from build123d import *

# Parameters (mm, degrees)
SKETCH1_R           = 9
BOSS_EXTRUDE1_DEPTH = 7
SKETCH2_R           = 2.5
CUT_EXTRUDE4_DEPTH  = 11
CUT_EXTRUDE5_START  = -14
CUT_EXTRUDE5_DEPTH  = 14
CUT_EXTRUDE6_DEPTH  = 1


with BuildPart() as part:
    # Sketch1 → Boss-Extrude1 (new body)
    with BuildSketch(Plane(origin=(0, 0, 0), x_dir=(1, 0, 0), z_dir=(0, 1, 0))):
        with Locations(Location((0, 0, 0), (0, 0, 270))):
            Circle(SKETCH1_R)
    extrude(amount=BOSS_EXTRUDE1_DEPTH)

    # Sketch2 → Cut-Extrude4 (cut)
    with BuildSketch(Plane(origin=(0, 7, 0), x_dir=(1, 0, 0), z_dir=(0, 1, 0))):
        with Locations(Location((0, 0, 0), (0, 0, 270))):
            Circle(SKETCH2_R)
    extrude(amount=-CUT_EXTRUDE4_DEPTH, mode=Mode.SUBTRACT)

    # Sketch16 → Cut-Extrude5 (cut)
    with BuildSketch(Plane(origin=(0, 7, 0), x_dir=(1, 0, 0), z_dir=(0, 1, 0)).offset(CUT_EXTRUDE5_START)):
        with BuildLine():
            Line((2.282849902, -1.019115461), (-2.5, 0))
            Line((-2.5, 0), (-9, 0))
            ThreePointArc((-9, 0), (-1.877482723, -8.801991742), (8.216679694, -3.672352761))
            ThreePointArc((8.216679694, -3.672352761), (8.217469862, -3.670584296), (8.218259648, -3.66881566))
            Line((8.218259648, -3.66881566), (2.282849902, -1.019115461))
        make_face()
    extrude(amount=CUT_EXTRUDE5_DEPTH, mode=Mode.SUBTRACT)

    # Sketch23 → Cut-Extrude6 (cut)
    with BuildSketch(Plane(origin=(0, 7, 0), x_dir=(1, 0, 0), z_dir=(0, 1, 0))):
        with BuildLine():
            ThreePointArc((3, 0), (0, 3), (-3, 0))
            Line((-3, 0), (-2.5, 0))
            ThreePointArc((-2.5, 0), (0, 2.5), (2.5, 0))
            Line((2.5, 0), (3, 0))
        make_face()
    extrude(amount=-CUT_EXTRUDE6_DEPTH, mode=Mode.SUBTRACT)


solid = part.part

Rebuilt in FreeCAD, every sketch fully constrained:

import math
import FreeCAD as App
import Part
import Sketcher
Q = App.Units.Quantity

doc = App.newDocument("Part")
body = doc.addObject("PartDesign::Body", "Body")

# Sketch on XZ plane
sketch1 = body.newObject("Sketcher::SketchObject", "Sketch")
sketch1.AttachmentSupport = (doc.getObject("XZ_Plane"), [""])
sketch1.MapMode = "FlatFace"
sketch1.addGeometry(Part.Circle(App.Vector(0, 0, 0), App.Vector(0, 0, 1), 9), False)
sketch1.addConstraint([
    Sketcher.Constraint("Coincident", 0, 3, -1, 1),
    Sketcher.Constraint("Diameter", 0, Q("18 mm")),
])
pad1 = body.newObject("PartDesign::Pad", "Pad")
pad1.Profile = sketch1
pad1.Length = 7
pad1.Reversed = True

# Sketch on XZ plane
sketch2 = body.newObject("Sketcher::SketchObject", "Sketch001")
sketch2.AttachmentSupport = (doc.getObject("XZ_Plane"), [""])
sketch2.MapMode = "FlatFace"
sketch2.AttachmentOffset = App.Placement(App.Vector(0, 0, -7), App.Rotation())
sketch2.addGeometry(Part.Circle(App.Vector(0, 0, 0), App.Vector(0, 0, 1), 2.5), False)
sketch2.addConstraint([
    Sketcher.Constraint("Coincident", 0, 3, -1, 1),
    Sketcher.Constraint("Diameter", 0, Q("5 mm")),
])
pocket1 = body.newObject("PartDesign::Pocket", "Pocket")
pocket1.Profile = sketch2
pocket1.Length = 11
pocket1.Reversed = True

# Sketch on XZ plane
sketch3 = body.newObject("Sketcher::SketchObject", "Sketch002")
sketch3.AttachmentSupport = (doc.getObject("XZ_Plane"), [""])
sketch3.MapMode = "FlatFace"
sketch3.AttachmentOffset = App.Placement(App.Vector(0, 0, 7), App.Rotation())
sketch3.addGeometry([
    Part.LineSegment(App.Vector(2.28285, 1.019115, 0), App.Vector(-2.5, 0, 0)),  # 0
    Part.LineSegment(App.Vector(-2.5, 0, 0), App.Vector(-9, 0, 0)),  # 1
    Part.ArcOfCircle(Part.Circle(App.Vector(0, 0, 0), App.Vector(0, 0, 1), 9), math.radians(24.08172), math.radians(180)),  # 2
    Part.ArcOfCircle(Part.Circle(App.Vector(0.032525, 0.014529, 0), App.Vector(0, 0, 1), 8.964378), math.radians(24.057003), math.radians(24.081764)),  # 3
    Part.LineSegment(App.Vector(8.21826, 3.668816, 0), App.Vector(2.28285, 1.019115, 0)),  # 4
], False)
sketch3.addConstraint([
    Sketcher.Constraint("Coincident", 0, 2, 1, 1),
    Sketcher.Constraint("Coincident", 1, 2, 2, 2),
    Sketcher.Constraint("Coincident", 2, 1, 3, 2),
    Sketcher.Constraint("Coincident", 3, 1, 4, 1),
    Sketcher.Constraint("Coincident", 4, 2, 0, 1),
    Sketcher.Constraint("Horizontal", 1),
    Sketcher.Constraint("Coincident", 2, 3, -1, 1),
    Sketcher.Constraint("PointOnObject", 0, 2, -1),
    Sketcher.Constraint("Radius", 2, Q("9 mm")),
    Sketcher.Constraint("DistanceX", 1, 2, 1, 1, Q("6.5 mm")),
    Sketcher.Constraint("Distance", 4, Q("6.5 mm")),
    Sketcher.Constraint("Radius", 3, Q("8.964378 mm")),
    Sketcher.Constraint("DistanceY", 4, 2, 3, 1, Q("2.6497 mm")),
    Sketcher.Constraint("Distance", 0, Q("4.89022 mm")),
    Sketcher.Constraint("DistanceY", -1, 1, 3, 3, Q("0.014529 mm")),
    Sketcher.Constraint("DistanceX", -1, 1, 2, 1, Q("8.21668 mm")),
])
pocket2 = body.newObject("PartDesign::Pocket", "Pocket001")
pocket2.Profile = sketch3
pocket2.Length = 14

# Sketch on XZ plane
sketch4 = body.newObject("Sketcher::SketchObject", "Sketch003")
sketch4.AttachmentSupport = (doc.getObject("XZ_Plane"), [""])
sketch4.MapMode = "FlatFace"
sketch4.AttachmentOffset = App.Placement(App.Vector(0, 0, -7), App.Rotation())
sketch4.addGeometry([
    Part.ArcOfCircle(Part.Circle(App.Vector(0, 0, 0), App.Vector(0, 0, 1), 3), math.radians(180), math.radians(360)),
    Part.LineSegment(App.Vector(-3, 0, 0), App.Vector(-2.5, 0, 0)),
    Part.ArcOfCircle(Part.Circle(App.Vector(0, 0, 0), App.Vector(0, 0, 1), 2.5), math.radians(180), math.radians(360)),
    Part.LineSegment(App.Vector(2.5, 0, 0), App.Vector(3, 0, 0)),
], False)
sketch4.addConstraint([
    Sketcher.Constraint("Coincident", 0, 1, 1, 1),
    Sketcher.Constraint("Coincident", 1, 2, 2, 1),
    Sketcher.Constraint("Coincident", 2, 2, 3, 1),
    Sketcher.Constraint("Coincident", 3, 2, 0, 2),
    Sketcher.Constraint("Horizontal", 1),
    Sketcher.Constraint("Horizontal", 3),
    Sketcher.Constraint("Coincident", 0, 3, -1, 1),
    Sketcher.Constraint("Coincident", 2, 3, -1, 1),
    Sketcher.Constraint("PointOnObject", 0, 1, -1),
    Sketcher.Constraint("PointOnObject", 2, 2, -1),
    Sketcher.Constraint("Radius", 0, Q("3 mm")),
    Sketcher.Constraint("Radius", 2, Q("2.5 mm")),
])
pocket3 = body.newObject("PartDesign::Pocket", "Pocket002")
pocket3.Profile = sketch4
pocket3.Length = 1
pocket3.Reversed = True

doc.recompute()
